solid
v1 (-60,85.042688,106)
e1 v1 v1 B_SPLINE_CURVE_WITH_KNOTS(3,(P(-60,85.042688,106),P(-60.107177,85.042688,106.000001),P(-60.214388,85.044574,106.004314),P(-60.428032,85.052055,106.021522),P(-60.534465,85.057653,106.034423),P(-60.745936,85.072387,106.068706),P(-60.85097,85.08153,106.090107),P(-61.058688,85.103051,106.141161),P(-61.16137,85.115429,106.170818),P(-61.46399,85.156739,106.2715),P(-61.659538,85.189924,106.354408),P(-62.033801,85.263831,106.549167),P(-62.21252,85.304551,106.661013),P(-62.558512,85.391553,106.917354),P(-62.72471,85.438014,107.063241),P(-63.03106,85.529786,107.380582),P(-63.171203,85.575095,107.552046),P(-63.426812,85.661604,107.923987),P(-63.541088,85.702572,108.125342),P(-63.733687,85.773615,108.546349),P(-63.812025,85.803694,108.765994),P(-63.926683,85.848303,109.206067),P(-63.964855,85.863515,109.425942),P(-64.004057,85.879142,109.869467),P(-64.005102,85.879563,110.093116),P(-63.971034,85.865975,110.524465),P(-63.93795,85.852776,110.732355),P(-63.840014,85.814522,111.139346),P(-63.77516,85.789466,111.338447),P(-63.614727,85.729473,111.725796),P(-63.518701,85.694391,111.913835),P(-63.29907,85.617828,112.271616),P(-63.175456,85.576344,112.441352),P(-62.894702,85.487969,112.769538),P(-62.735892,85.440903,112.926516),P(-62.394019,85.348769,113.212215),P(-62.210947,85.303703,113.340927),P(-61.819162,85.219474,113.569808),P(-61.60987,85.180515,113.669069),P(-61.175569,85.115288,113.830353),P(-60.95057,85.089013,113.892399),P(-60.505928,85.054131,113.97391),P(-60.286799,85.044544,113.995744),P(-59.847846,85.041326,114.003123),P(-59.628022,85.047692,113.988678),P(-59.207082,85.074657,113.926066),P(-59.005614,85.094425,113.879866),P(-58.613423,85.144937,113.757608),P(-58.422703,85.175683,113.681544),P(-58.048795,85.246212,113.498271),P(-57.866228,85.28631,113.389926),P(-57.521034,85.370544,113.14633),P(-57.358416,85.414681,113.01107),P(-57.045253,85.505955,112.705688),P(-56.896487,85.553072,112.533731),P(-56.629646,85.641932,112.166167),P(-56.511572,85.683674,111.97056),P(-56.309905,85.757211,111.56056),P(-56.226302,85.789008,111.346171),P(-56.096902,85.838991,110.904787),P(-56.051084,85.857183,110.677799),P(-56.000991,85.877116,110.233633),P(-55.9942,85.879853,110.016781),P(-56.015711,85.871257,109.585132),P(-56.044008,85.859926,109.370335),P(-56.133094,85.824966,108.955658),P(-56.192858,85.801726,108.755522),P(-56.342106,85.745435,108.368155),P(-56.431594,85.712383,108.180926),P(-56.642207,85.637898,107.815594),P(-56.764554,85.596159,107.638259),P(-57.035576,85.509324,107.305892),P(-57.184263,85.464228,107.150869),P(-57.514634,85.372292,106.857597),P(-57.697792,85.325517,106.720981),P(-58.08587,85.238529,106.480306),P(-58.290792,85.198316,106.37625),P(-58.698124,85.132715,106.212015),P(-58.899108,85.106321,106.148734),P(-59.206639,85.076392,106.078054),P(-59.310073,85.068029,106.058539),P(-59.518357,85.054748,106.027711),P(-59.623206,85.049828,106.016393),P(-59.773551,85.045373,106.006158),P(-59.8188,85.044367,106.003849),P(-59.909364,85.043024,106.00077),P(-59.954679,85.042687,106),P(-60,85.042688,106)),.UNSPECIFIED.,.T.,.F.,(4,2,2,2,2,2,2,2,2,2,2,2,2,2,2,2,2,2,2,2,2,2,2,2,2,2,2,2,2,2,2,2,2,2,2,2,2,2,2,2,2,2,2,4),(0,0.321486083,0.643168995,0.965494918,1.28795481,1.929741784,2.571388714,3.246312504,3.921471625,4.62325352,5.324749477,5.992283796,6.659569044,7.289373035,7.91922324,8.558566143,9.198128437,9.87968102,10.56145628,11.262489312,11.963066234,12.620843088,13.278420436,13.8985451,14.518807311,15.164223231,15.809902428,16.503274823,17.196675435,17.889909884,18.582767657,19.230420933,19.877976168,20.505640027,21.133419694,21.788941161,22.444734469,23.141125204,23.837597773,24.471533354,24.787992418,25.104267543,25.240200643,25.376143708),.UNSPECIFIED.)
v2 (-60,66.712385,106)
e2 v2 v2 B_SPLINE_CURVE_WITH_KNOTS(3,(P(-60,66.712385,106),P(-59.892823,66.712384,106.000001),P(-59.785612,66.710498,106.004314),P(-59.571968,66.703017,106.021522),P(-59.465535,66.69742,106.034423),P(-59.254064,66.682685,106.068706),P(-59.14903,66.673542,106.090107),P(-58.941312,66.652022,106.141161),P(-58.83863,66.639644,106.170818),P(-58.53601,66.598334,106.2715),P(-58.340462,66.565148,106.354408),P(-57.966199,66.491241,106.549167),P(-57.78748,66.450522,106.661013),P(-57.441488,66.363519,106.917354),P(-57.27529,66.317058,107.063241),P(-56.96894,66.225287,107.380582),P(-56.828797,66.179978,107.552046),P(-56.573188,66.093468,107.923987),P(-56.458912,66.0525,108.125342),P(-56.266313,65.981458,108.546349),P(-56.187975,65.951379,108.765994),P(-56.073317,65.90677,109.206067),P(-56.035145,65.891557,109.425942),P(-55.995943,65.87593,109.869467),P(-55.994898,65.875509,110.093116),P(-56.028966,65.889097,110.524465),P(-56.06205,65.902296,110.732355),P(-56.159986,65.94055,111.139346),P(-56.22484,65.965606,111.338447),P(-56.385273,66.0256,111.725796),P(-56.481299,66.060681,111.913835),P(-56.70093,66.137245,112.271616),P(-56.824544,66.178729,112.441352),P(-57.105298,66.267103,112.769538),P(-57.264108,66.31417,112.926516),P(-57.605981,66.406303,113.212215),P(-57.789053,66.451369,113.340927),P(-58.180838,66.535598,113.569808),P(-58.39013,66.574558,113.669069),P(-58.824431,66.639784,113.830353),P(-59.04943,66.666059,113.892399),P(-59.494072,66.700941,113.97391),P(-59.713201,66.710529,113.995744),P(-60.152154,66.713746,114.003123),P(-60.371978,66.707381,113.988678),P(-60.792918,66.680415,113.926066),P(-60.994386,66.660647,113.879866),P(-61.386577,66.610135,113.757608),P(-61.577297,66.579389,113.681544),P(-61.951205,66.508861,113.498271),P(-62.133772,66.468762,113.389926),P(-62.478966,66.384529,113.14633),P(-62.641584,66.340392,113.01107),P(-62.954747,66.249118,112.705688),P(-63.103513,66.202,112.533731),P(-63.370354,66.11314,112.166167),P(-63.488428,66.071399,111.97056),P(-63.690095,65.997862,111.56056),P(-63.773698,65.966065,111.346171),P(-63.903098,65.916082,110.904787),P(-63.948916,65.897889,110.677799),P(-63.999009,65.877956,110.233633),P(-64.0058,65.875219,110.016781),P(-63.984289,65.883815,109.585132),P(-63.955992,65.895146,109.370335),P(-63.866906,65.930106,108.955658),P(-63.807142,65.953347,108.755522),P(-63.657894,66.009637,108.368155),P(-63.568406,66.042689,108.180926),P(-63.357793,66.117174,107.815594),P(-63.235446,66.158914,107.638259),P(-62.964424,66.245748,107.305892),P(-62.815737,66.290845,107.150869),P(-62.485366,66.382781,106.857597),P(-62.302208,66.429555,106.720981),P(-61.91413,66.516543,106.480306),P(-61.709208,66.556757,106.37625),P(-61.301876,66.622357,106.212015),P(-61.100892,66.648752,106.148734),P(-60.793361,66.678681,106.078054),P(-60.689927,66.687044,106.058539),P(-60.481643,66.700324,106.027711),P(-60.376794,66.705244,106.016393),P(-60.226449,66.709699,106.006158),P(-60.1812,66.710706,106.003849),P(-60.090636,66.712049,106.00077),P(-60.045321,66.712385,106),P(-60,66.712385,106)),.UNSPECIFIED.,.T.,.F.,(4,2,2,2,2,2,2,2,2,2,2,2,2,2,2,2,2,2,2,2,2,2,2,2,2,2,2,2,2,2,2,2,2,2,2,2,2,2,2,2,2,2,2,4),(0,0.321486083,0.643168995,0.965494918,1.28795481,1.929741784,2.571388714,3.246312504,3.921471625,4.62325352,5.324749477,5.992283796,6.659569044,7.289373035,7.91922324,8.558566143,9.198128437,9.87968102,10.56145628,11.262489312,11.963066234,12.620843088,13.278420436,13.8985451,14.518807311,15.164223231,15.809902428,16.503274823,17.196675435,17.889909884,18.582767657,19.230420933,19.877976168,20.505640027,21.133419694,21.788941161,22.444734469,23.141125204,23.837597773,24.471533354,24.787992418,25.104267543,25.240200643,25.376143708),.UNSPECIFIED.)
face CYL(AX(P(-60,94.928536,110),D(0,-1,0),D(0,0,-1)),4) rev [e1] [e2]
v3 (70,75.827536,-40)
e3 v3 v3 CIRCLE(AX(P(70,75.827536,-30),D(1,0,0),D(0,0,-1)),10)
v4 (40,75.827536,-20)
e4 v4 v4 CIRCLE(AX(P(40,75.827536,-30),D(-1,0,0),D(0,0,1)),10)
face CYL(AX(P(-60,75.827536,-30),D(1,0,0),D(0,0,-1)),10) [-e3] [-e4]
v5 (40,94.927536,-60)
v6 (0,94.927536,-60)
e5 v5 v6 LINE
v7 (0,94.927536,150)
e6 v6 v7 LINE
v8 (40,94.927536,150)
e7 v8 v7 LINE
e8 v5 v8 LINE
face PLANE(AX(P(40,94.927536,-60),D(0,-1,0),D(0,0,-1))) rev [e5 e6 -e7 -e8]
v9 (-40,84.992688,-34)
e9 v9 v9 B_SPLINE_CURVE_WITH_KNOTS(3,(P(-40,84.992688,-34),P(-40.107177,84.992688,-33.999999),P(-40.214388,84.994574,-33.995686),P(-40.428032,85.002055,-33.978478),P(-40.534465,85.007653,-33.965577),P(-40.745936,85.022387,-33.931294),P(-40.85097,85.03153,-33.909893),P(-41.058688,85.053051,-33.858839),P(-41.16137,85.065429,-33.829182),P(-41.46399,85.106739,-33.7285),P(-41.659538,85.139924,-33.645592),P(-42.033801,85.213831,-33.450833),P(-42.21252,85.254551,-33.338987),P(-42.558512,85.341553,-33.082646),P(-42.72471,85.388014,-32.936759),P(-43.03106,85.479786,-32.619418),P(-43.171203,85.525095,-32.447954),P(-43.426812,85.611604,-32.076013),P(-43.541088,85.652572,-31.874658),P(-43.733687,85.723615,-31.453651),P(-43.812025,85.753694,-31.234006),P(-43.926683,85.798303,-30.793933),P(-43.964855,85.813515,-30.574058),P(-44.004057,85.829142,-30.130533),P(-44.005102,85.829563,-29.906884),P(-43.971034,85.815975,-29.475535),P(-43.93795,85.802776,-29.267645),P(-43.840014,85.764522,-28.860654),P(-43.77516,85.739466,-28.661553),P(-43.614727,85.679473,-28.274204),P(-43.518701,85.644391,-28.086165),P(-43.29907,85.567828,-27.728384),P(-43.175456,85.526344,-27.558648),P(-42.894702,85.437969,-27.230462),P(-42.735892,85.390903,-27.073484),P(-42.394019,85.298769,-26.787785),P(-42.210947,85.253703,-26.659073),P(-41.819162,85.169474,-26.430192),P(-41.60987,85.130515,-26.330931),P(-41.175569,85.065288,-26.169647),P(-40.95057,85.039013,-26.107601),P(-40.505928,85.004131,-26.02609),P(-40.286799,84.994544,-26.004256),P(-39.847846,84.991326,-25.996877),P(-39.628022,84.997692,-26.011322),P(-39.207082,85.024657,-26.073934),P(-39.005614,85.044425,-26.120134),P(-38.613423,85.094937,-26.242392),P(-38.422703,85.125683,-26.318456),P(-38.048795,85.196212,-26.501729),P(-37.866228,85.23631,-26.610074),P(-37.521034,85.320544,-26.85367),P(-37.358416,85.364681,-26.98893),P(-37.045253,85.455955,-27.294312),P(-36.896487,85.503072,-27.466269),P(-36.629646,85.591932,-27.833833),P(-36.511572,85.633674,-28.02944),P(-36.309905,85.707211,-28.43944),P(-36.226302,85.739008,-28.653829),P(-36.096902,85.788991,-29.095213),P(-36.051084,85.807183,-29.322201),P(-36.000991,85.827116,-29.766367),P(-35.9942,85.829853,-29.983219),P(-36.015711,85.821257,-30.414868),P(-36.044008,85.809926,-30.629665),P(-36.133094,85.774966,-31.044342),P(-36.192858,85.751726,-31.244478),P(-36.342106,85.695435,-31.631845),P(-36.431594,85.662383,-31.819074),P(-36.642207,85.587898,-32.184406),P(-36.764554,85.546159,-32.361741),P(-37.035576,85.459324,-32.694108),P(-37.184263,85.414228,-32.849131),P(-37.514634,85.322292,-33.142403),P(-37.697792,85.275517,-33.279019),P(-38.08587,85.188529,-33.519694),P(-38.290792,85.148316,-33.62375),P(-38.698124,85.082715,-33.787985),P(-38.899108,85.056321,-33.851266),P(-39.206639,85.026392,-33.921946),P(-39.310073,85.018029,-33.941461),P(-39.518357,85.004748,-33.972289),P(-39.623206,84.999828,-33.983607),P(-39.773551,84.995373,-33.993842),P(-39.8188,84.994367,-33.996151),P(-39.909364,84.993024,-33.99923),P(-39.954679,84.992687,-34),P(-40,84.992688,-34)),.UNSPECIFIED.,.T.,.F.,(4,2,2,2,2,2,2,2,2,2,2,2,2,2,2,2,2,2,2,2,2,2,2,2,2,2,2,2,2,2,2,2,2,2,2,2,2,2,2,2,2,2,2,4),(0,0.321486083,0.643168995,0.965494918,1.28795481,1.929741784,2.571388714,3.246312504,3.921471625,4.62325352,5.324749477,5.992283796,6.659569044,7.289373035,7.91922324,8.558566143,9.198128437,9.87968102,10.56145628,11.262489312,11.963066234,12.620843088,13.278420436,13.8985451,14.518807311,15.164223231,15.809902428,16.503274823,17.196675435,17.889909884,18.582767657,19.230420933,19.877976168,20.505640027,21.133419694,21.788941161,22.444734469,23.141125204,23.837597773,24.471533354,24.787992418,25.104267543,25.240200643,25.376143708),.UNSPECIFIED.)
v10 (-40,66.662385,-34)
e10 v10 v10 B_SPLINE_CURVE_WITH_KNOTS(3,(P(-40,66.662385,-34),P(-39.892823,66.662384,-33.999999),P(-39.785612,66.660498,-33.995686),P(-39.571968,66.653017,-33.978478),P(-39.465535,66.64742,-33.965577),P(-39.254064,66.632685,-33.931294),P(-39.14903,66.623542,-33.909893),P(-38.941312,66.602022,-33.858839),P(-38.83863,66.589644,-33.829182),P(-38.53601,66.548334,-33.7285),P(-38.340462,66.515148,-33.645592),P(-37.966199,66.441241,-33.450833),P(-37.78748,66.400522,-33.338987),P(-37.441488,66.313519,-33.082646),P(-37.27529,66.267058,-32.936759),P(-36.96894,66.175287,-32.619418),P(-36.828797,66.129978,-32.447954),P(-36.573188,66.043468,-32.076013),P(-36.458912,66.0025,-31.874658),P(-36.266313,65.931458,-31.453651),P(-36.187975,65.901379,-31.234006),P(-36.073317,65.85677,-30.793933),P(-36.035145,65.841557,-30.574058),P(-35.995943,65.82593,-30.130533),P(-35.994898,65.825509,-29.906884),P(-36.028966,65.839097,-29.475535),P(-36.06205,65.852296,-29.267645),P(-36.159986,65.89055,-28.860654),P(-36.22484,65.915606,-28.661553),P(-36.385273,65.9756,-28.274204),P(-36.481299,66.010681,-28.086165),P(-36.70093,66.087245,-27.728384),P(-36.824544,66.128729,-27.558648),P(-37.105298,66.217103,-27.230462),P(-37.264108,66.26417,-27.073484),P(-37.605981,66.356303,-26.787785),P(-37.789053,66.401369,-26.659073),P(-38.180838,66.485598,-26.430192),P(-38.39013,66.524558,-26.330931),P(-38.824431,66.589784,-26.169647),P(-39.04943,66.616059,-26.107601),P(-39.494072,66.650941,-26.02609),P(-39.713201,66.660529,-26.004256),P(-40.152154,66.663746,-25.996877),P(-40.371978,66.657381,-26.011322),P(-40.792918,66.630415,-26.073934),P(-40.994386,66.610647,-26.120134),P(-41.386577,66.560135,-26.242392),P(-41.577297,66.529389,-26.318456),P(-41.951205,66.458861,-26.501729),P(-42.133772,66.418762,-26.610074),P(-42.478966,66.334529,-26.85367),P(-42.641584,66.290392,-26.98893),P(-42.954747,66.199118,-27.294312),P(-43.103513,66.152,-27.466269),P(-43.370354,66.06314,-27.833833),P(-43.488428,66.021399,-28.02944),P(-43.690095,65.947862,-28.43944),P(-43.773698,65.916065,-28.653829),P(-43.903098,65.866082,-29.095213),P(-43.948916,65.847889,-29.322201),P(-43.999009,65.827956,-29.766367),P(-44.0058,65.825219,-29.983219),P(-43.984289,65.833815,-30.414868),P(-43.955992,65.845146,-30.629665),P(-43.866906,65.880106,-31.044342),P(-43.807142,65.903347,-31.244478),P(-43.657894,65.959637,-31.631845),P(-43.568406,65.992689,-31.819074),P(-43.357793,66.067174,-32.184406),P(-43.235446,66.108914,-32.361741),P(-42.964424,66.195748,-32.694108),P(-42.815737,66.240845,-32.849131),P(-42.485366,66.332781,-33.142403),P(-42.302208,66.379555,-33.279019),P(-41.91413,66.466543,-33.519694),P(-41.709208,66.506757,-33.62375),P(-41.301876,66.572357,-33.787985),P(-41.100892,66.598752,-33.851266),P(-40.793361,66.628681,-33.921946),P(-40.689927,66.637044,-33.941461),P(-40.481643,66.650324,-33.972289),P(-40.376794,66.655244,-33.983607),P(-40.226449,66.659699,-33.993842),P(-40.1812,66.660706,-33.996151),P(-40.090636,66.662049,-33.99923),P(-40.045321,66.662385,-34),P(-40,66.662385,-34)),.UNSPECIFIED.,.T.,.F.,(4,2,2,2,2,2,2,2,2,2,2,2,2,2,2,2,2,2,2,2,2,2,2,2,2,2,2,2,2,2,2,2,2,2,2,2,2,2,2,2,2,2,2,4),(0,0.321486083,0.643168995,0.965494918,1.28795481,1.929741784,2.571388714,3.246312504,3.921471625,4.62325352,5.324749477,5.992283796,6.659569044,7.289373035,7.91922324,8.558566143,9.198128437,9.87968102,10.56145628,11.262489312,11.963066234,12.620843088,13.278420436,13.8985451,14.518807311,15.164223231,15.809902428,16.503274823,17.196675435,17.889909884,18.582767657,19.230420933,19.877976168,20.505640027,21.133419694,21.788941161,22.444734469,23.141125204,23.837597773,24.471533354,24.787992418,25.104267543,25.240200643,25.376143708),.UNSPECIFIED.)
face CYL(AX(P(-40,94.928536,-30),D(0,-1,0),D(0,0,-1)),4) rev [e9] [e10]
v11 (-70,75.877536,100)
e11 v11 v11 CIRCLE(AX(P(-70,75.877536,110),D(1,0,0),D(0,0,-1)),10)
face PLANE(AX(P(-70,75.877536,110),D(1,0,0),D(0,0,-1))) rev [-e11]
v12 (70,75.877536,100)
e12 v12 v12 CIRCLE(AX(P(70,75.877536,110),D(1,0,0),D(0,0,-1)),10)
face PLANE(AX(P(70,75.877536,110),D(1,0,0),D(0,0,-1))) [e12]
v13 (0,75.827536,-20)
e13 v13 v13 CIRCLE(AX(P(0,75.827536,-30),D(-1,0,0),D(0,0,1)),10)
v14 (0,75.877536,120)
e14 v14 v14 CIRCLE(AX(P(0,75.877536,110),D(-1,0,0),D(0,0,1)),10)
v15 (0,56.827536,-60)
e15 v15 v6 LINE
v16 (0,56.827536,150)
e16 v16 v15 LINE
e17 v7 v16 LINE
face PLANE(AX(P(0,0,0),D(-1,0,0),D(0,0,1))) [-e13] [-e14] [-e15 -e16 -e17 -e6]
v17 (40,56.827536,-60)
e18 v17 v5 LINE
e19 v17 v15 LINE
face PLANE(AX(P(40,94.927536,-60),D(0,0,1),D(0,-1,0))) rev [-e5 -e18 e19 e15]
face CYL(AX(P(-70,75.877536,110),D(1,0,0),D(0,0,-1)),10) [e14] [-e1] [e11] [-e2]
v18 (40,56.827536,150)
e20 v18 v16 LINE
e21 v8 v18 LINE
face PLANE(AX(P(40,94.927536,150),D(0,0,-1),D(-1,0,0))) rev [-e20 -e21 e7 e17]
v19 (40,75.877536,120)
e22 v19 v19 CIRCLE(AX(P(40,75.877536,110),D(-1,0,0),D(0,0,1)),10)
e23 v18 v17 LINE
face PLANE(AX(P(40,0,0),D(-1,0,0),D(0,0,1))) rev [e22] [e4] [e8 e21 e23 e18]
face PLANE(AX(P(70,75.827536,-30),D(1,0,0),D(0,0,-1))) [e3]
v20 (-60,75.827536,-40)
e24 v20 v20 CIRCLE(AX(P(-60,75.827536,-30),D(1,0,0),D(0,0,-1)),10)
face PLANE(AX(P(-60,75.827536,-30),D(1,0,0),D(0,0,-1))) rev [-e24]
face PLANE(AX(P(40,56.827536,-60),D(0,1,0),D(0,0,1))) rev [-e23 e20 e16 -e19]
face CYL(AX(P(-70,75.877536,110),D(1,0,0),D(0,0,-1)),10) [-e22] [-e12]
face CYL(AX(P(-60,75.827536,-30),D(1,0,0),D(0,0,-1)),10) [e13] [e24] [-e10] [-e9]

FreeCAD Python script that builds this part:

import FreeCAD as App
import Part
import Sketcher
from FreeCAD import Vector
Q = App.Units.Quantity


def add_polygon(sketch, points):
    """Adds a closed chain of lines whose ends are joined by coincident constraints."""
    first, n = sketch.GeometryCount, len(points)
    for a, b in zip(points, points[1:] + points[:1]):
        sketch.addGeometry(Part.LineSegment(App.Vector(*a, 0), App.Vector(*b, 0)), False)
    for i in range(n):
        sketch.addConstraint(Sketcher.Constraint("Coincident", first + i, 2, first + (i + 1) % n, 1))

doc = App.newDocument("Part")
body = doc.addObject("PartDesign::Body", "Body")

sketch1 = body.newObject("Sketcher::SketchObject", "Sketch")
sketch1.AttachmentSupport = (doc.getObject("YZ_Plane"), [""])
sketch1.MapMode = "FlatFace"
add_polygon(sketch1, [(94.927536, 150), (56.827536, 150), (56.827536, -60), (94.927536, -60)])
sketch1.addConstraint([
    Sketcher.Constraint("Horizontal", 0),
    Sketcher.Constraint("Vertical", 1),
    Sketcher.Constraint("Horizontal", 2),
    Sketcher.Constraint("Vertical", 3),
    Sketcher.Constraint("DistanceY", 1, 2, 1, 1, Q("210 mm")),
    Sketcher.Constraint("DistanceX", 0, 2, 0, 1, Q("38.1 mm")),
    Sketcher.Constraint("DistanceY", -1, 1, 0, 2, Q("150 mm")),
    Sketcher.Constraint("DistanceX", -1, 1, 0, 2, Q("56.827536 mm")),
])
pad1 = body.newObject("PartDesign::Pad", "Pad")
pad1.Profile = sketch1
pad1.Length = 40

sketch2 = body.newObject("Sketcher::SketchObject", "Sketch001")
sketch2.AttachmentSupport = (doc.getObject("YZ_Plane"), [""])
sketch2.MapMode = "FlatFace"
sketch2.AttachmentOffset = App.Placement(Vector(0, 0, 70), App.Rotation())
sketch2.addGeometry(Part.Circle(Vector(75.877536, 110, 0), Vector(0, 0, 1), 10), False)
sketch2.addConstraint([
    Sketcher.Constraint("Diameter", 0, Q("20 mm")),
    Sketcher.Constraint("DistanceY", -1, 1, 0, 3, Q("110 mm")),
    Sketcher.Constraint("DistanceX", -1, 1, 0, 3, Q("75.877536 mm")),
])
pad2 = body.newObject("PartDesign::Pad", "Pad001")
pad2.Profile = sketch2
pad2.Length = 140
pad2.Reversed = True

sketch3 = body.newObject("Sketcher::SketchObject", "Sketch002")
sketch3.AttachmentSupport = (doc.getObject("XZ_Plane"), [""])
sketch3.MapMode = "FlatFace"
sketch3.addGeometry(Part.Circle(Vector(-60, 110, 0), Vector(0, 0, 1), 4), False)
sketch3.addConstraint([
    Sketcher.Constraint("Diameter", 0, Q("8 mm")),
    Sketcher.Constraint("DistanceX", 0, 3, -1, 1, Q("60 mm")),
    Sketcher.Constraint("DistanceY", -1, 1, 0, 3, Q("110 mm")),
])
pocket1 = body.newObject("PartDesign::Pocket", "Pocket")
pocket1.Profile = sketch3
pocket1.Length = 85.877536

sketch4 = body.newObject("Sketcher::SketchObject", "Sketch003")
sketch4.AttachmentSupport = (doc.getObject("YZ_Plane"), [""])
sketch4.MapMode = "FlatFace"
sketch4.AttachmentOffset = App.Placement(Vector(0, 0, 70), App.Rotation())
sketch4.addGeometry(Part.Circle(Vector(75.827536, -30, 0), Vector(0, 0, 1), 10), False)
sketch4.addConstraint([
    Sketcher.Constraint("Diameter", 0, Q("20 mm")),
    Sketcher.Constraint("DistanceY", 0, 3, -1, 1, Q("30 mm")),
    Sketcher.Constraint("DistanceX", -1, 1, 0, 3, Q("75.827536 mm")),
])
pad3 = body.newObject("PartDesign::Pad", "Pad002")
pad3.Profile = sketch4
pad3.Length = 130
pad3.Reversed = True

sketch5 = body.newObject("Sketcher::SketchObject", "Sketch004")
sketch5.AttachmentSupport = (doc.getObject("XZ_Plane"), [""])
sketch5.MapMode = "FlatFace"
sketch5.addGeometry(Part.Circle(Vector(-40, -30, 0), Vector(0, 0, 1), 4), False)
sketch5.addConstraint([
    Sketcher.Constraint("Diameter", 0, Q("8 mm")),
    Sketcher.Constraint("DistanceX", 0, 3, -1, 1, Q("40 mm")),
    Sketcher.Constraint("DistanceY", 0, 3, -1, 1, Q("30 mm")),
])
pocket2 = body.newObject("PartDesign::Pocket", "Pocket001")
pocket2.Profile = sketch5
pocket2.Length = 85.827536

doc.recompute()
